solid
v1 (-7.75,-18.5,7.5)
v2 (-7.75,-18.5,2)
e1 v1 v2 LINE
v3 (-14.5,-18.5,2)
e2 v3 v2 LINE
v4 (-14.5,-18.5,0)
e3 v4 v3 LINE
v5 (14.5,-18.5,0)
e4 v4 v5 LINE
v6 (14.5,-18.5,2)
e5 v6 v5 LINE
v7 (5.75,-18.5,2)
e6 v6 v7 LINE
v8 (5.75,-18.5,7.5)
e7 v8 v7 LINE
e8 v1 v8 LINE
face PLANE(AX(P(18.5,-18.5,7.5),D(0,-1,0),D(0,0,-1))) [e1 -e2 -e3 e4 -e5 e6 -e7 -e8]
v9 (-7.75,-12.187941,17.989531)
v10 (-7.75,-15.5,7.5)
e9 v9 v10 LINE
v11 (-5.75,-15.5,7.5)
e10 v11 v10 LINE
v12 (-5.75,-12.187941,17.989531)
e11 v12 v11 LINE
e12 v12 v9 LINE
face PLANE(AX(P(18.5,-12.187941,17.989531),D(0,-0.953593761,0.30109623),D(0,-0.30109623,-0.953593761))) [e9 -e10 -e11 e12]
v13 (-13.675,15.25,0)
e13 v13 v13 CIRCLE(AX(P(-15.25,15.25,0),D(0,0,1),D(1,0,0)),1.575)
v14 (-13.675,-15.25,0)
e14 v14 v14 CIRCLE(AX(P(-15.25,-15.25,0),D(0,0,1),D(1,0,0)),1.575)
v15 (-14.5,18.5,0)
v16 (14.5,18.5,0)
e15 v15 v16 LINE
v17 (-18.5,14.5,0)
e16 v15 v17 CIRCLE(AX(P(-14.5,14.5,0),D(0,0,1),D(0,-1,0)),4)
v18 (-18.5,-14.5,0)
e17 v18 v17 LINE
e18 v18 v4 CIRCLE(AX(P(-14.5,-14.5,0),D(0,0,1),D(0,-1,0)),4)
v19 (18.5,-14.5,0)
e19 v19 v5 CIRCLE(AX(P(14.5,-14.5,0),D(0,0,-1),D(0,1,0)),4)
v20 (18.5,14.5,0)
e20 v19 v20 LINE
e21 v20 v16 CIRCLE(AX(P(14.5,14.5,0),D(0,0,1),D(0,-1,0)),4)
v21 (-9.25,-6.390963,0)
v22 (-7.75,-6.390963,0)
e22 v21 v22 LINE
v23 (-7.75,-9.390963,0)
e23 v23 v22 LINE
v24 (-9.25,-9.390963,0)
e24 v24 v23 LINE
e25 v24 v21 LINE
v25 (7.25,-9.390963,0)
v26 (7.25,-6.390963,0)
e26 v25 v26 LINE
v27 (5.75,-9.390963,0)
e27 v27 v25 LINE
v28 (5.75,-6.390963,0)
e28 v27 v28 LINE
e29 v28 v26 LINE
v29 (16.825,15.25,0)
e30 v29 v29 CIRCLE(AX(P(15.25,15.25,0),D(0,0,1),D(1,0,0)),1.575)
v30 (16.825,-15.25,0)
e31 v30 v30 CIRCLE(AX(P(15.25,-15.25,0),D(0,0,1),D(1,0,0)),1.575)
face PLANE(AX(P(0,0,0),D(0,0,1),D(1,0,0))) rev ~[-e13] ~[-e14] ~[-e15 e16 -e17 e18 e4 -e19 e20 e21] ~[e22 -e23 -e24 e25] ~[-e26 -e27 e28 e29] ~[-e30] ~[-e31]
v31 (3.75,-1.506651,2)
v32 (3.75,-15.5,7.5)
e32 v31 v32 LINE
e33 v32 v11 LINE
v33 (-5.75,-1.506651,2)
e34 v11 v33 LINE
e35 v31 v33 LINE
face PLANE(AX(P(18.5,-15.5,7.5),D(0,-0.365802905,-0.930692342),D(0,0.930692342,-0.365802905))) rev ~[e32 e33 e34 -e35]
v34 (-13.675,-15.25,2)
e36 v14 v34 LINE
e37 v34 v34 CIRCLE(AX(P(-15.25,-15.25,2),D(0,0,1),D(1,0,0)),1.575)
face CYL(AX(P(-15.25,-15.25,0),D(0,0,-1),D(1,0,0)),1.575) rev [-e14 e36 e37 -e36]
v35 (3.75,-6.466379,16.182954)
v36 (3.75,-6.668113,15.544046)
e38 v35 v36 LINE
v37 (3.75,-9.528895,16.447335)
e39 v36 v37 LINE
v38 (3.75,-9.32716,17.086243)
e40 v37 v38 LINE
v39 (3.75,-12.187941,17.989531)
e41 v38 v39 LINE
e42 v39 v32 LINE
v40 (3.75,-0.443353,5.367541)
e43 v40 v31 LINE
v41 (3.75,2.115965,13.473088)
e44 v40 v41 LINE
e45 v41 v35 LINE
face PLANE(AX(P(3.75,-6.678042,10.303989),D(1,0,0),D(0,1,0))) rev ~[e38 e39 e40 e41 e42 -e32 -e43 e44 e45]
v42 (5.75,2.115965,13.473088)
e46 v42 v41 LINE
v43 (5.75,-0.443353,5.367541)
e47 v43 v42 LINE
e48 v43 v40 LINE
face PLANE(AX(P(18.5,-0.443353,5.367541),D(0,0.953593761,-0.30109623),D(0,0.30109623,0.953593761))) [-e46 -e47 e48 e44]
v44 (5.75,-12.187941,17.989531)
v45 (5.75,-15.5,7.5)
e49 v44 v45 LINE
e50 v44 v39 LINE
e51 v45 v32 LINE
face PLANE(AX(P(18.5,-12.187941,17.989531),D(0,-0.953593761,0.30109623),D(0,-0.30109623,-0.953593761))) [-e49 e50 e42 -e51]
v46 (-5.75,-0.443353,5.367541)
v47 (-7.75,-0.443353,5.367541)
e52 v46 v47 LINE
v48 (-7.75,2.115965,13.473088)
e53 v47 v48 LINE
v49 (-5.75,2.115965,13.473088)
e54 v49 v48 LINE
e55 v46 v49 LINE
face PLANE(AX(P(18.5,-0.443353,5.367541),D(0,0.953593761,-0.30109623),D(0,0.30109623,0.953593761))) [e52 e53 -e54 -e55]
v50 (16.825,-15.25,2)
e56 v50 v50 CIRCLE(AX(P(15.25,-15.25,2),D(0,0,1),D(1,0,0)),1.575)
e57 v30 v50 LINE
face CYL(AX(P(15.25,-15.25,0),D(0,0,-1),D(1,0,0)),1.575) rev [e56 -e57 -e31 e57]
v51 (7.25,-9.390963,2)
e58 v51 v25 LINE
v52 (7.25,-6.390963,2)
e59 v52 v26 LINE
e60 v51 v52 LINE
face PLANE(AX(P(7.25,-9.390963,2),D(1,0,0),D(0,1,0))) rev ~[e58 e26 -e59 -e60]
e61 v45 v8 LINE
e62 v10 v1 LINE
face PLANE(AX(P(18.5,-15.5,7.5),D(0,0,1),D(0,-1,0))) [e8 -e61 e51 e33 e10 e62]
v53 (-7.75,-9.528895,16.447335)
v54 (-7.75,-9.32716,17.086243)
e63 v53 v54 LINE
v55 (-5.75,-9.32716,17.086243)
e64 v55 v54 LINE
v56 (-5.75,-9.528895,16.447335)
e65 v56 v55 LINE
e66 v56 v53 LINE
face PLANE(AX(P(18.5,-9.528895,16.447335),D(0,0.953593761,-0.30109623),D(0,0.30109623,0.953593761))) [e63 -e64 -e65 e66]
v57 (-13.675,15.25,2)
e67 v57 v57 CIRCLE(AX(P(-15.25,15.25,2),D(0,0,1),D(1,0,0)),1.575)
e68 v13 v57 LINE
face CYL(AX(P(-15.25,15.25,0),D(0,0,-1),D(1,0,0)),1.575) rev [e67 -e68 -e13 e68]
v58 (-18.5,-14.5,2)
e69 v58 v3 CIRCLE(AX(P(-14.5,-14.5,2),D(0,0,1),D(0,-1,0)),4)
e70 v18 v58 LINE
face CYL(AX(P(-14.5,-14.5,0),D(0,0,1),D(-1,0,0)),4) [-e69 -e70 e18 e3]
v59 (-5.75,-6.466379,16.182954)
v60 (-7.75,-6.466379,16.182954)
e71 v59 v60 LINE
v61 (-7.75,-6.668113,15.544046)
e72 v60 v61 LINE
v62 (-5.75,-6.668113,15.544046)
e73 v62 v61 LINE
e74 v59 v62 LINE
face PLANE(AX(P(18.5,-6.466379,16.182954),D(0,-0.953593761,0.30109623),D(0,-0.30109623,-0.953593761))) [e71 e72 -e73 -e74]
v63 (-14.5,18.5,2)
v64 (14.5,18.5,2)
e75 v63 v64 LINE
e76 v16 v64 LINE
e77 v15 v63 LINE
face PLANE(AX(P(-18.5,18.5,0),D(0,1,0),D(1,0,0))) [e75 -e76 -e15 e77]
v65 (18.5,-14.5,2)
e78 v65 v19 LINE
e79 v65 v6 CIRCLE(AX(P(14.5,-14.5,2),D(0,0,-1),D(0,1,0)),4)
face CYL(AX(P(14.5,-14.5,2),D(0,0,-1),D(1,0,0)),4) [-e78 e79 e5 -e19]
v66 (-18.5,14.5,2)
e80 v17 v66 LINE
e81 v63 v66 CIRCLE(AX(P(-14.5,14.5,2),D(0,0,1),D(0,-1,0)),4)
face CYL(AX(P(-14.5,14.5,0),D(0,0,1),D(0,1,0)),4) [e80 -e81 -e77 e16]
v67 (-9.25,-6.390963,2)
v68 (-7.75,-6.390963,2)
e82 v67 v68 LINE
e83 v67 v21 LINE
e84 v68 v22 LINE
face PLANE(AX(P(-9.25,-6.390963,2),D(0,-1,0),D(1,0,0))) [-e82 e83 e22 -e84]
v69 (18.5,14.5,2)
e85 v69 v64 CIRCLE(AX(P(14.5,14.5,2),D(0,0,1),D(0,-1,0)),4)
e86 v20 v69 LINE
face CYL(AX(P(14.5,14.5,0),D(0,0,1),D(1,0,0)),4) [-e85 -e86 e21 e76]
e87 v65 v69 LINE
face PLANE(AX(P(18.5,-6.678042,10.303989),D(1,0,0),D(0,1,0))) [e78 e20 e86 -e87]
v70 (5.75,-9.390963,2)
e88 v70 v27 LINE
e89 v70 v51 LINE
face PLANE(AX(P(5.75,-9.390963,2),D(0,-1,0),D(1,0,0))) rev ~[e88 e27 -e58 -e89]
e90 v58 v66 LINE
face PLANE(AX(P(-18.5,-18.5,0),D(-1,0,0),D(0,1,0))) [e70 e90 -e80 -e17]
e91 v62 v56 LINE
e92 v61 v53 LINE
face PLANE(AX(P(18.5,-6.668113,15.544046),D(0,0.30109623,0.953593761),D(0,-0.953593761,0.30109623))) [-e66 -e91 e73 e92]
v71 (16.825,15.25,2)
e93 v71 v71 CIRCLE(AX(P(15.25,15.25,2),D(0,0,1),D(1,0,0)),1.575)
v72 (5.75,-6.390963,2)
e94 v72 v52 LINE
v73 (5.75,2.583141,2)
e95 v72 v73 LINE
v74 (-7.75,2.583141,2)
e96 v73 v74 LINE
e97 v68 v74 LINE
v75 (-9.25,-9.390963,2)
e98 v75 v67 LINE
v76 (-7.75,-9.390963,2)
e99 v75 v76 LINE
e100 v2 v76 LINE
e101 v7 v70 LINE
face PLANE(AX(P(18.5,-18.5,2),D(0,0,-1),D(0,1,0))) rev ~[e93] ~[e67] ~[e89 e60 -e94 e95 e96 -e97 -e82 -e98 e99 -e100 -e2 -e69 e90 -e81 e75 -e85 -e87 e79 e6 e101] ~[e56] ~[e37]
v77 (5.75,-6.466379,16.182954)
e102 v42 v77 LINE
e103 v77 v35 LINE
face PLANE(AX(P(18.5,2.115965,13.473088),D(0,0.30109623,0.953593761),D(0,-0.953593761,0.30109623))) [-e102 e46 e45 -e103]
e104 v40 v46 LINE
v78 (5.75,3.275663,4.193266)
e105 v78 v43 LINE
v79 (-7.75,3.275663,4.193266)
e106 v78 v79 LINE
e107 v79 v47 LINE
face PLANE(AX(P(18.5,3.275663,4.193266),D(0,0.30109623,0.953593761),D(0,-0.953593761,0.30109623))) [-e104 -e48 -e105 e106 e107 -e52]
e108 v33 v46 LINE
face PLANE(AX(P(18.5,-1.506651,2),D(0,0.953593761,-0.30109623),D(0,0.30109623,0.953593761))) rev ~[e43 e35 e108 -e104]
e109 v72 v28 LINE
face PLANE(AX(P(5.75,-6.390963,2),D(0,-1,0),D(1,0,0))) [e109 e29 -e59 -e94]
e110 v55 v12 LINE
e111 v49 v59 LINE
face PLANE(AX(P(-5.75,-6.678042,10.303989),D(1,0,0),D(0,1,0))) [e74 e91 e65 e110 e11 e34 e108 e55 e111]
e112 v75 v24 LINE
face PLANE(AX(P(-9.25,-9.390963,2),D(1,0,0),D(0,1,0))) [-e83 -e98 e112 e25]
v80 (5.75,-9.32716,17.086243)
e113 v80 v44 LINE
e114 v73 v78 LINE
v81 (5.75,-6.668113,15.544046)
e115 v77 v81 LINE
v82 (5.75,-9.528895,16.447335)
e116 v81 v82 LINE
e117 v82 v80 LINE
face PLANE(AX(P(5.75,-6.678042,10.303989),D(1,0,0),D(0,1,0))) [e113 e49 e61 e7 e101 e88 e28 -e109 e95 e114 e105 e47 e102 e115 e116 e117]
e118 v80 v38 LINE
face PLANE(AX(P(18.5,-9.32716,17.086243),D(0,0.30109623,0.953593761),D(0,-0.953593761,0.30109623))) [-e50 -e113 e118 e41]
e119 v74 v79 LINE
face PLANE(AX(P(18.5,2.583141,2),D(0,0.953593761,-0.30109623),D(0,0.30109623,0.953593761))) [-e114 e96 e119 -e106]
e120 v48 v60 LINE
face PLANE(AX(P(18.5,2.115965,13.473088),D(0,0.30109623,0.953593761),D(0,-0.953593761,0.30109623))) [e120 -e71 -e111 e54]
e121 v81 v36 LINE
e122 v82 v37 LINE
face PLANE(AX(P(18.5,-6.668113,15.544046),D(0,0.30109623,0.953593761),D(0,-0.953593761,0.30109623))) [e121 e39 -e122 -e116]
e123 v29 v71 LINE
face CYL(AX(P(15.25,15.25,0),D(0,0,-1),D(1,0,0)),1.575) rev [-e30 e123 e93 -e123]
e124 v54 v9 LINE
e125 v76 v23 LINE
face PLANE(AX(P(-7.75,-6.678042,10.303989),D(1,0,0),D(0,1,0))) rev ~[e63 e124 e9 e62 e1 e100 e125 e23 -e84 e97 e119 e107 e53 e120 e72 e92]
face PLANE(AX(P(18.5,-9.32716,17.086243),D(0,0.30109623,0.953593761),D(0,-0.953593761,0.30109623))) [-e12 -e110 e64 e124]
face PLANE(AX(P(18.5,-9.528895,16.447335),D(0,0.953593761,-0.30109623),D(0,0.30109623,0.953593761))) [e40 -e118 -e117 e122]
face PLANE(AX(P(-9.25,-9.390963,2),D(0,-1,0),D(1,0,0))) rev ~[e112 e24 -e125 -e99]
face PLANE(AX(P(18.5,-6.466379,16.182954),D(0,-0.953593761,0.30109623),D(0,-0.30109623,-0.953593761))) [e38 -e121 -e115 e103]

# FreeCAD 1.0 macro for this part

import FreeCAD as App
import Part
import Sketcher

V = App.Vector


def edges_at(feature, points):
    """Names of the edges that pass closest to the given points."""
    edges = feature.Shape.Edges
    near = lambda p: min(range(len(edges)), key=lambda i: edges[i].distToShape(Part.Vertex(*p))[0])
    return sorted({f"Edge{near(p) + 1}" for p in points})


def add_polygon(sketch, points):
    """Adds a closed chain of lines whose ends are joined by coincident constraints."""
    first, n = sketch.GeometryCount, len(points)
    for a, b in zip(points, points[1:] + points[:1]):
        sketch.addGeometry(Part.LineSegment(App.Vector(*a, 0), App.Vector(*b, 0)), False)
    for i in range(n):
        sketch.addConstraint(Sketcher.Constraint("Coincident", first + i, 2, first + (i + 1) % n, 1))

doc = App.newDocument("Part")
body = doc.addObject("PartDesign::Body", "Body")

# Sketch on XY plane
sketch1 = body.newObject("Sketcher::SketchObject", "Sketch")
sketch1.AttachmentSupport = (doc.getObject("XY_Plane"), [""])
sketch1.MapMode = "FlatFace"
add_polygon(sketch1, [(-18.5, 18.5), (-18.5, -18.5), (18.5, -18.5), (18.5, 18.5)])  # lines 0-3
sketch1.addGeometry(Part.Circle(V(-15.25, -15.25, 0), V(0, 0, 1), 1.575), False)  # 4
sketch1.addGeometry(Part.Circle(V(15.25, -15.25, 0), V(0, 0, 1), 1.575), False)  # 5
sketch1.addGeometry(Part.Circle(V(-15.25, 15.25, 0), V(0, 0, 1), 1.575), False)  # 6
sketch1.addGeometry(Part.Circle(V(15.25, 15.25, 0), V(0, 0, 1), 1.575), False)  # 7
sketch1.addConstraint(Sketcher.Constraint("Vertical", 0))
sketch1.addConstraint(Sketcher.Constraint("Horizontal", 1))
sketch1.addConstraint(Sketcher.Constraint("Vertical", 2))
sketch1.addConstraint(Sketcher.Constraint("Horizontal", 3))
sketch1.addConstraint(Sketcher.Constraint("Equal", 4, 5))
sketch1.addConstraint(Sketcher.Constraint("Equal", 5, 6))
sketch1.addConstraint(Sketcher.Constraint("Equal", 6, 7))
sketch1.addConstraint(Sketcher.Constraint("Symmetric", 5, 3, 6, 3, -1, 1))
sketch1.addConstraint(Sketcher.Constraint("Symmetric", 4, 3, 7, 3, -1, 1))
sketch1.addConstraint(Sketcher.Constraint("Symmetric", 0, 2, 2, 2, -1, 1))
sketch1.addConstraint(Sketcher.Constraint("Symmetric", 4, 3, 5, 3, -2))
sketch1.addConstraint(Sketcher.Constraint("Equal", 3, 0))
sketch1.addConstraint(Sketcher.Constraint("Diameter", 4, 3.15))
sketch1.addConstraint(Sketcher.Constraint("DistanceX", 1, 1, 1, 2, 37.0))
sketch1.addConstraint(Sketcher.Constraint("DistanceX", 4, 3, 5, 3, 30.5))
sketch1.addConstraint(Sketcher.Constraint("DistanceY", 4, 3, 6, 3, 30.5))
pad1 = body.newObject("PartDesign::Pad", "Pad")
pad1.Profile = sketch1
pad1.Length = 2

# Sketch on YZ plane
sketch2 = body.newObject("Sketcher::SketchObject", "Sketch001")
sketch2.AttachmentSupport = (doc.getObject("YZ_Plane"), [""])
sketch2.MapMode = "FlatFace"
sketch2.AttachmentOffset = App.Placement(V(0, 0, 18.5), App.Rotation())
add_polygon(sketch2, [(-12.187941, 17.989531), (-15.5, 7.5), (-18.5, 7.5), (-18.5, 2), (2.583141, 2), (3.275663, 4.193266), (-0.443353, 5.367541), (2.115965, 13.473088), (-6.466379, 16.182954), (-6.668113, 15.544046), (-9.528895, 16.447335), (-9.32716, 17.086243)])  # lines 0-11
sketch2.addConstraint(Sketcher.Constraint("Horizontal", 1))
sketch2.addConstraint(Sketcher.Constraint("Vertical", 2))
sketch2.addConstraint(Sketcher.Constraint("Horizontal", 3))
sketch2.addConstraint(Sketcher.Constraint("Parallel", 0, 4))
sketch2.addConstraint(Sketcher.Constraint("Perpendicular", 4, 5))
sketch2.addConstraint(Sketcher.Constraint("Perpendicular", 5, 6))
sketch2.addConstraint(Sketcher.Constraint("Perpendicular", 6, 7))
sketch2.addConstraint(Sketcher.Constraint("Perpendicular", 7, 8))
sketch2.addConstraint(Sketcher.Constraint("Perpendicular", 8, 9))
sketch2.addConstraint(Sketcher.Constraint("Perpendicular", 9, 10))
sketch2.addConstraint(Sketcher.Constraint("Perpendicular", 10, 11))
sketch2.addConstraint(Sketcher.Constraint("Equal", 8, 10))
sketch2.addConstraint(Sketcher.Constraint("Equal", 9, 11))
sketch2.addConstraint(Sketcher.Constraint("DistanceX", 1, 2, 1, 1, 3.0))
sketch2.addConstraint(Sketcher.Constraint("Distance", 0, 11.0))
sketch2.addConstraint(Sketcher.Constraint("Distance", 7, 9.0))
sketch2.addConstraint(Sketcher.Constraint("Distance", 9, 3.0))
sketch2.addConstraint(Sketcher.Constraint("DistanceY", 2, 2, 2, 1, 5.5))
sketch2.addConstraint(Sketcher.Constraint("DistanceY", -1, 1, 2, 2, 2.0))
sketch2.addConstraint(Sketcher.Constraint("Distance", 4, 2.3))
sketch2.addConstraint(Sketcher.Constraint("Distance", 5, 3.9))
sketch2.addConstraint(Sketcher.Constraint("Distance", 6, 8.5))
sketch2.addConstraint(Sketcher.Constraint("DistanceX", 0, 2, -1, 1, 15.5))
sketch2.addConstraint(Sketcher.Constraint("Distance", 8, 0.67))
pad2 = body.newObject("PartDesign::Pad", "Pad001")
pad2.Profile = sketch2
pad2.Length = 26.25
pad2.Reversed = True

# Sketch on YZ plane
sketch3 = body.newObject("Sketcher::SketchObject", "Sketch002")
sketch3.AttachmentSupport = (doc.getObject("YZ_Plane"), [""])
sketch3.MapMode = "FlatFace"
sketch3.AttachmentOffset = App.Placement(V(0, 0, 18.5), App.Rotation())
add_polygon(sketch3, [(-15.5, 7.5), (-1.506651, 2), (-0.443353, 5.367541), (2.115965, 13.473088), (-6.466379, 16.182954), (-6.668113, 15.544046), (-9.528895, 16.447335), (-9.32716, 17.086243), (-12.187941, 17.989531)])  # lines 0-8
sketch3.addConstraint(Sketcher.Constraint("Parallel", 1, 2))
sketch3.addConstraint(Sketcher.Constraint("Perpendicular", 2, 3))
sketch3.addConstraint(Sketcher.Constraint("Perpendicular", 3, 4))
sketch3.addConstraint(Sketcher.Constraint("Perpendicular", 4, 5))
sketch3.addConstraint(Sketcher.Constraint("Perpendicular", 5, 6))
sketch3.addConstraint(Sketcher.Constraint("Perpendicular", 6, 7))
sketch3.addConstraint(Sketcher.Constraint("Perpendicular", 7, 8))
sketch3.addConstraint(Sketcher.Constraint("Equal", 4, 6))
sketch3.addConstraint(Sketcher.Constraint("Equal", 5, 7))
sketch3.addConstraint(Sketcher.Constraint("Distance", 3, 9.0))
sketch3.addConstraint(Sketcher.Constraint("Distance", 5, 3.0))
sketch3.addConstraint(Sketcher.Constraint("Distance", 8, 11.0))
sketch3.addConstraint(Sketcher.Constraint("DistanceY", -1, 1, 0, 2, 2.0))
sketch3.addConstraint(Sketcher.Constraint("Distance", 2, 8.5))
sketch3.addConstraint(Sketcher.Constraint("DistanceX", 8, 2, -1, 1, 15.5))
sketch3.addConstraint(Sketcher.Constraint("DistanceY", -1, 1, 8, 2, 7.5))
sketch3.addConstraint(Sketcher.Constraint("Distance", 4, 0.67))
sketch3.addConstraint(Sketcher.Constraint("DistanceY", 1, 2, 6, 2, 11.718702))
pocket1 = body.newObject("PartDesign::Pocket", "Pocket")
pocket1.Profile = sketch3
pocket1.Length = 24.25

# Sketch on YZ plane
sketch4 = body.newObject("Sketcher::SketchObject", "Sketch003")
sketch4.AttachmentSupport = (doc.getObject("YZ_Plane"), [""])
sketch4.MapMode = "FlatFace"
sketch4.AttachmentOffset = App.Placement(V(0, 0, 18.5), App.Rotation())
add_polygon(sketch4, [(-12.187941, 17.989531), (-15.5, 7.5), (-18.5, 7.5), (-18.5, 2), (2.583141, 2), (3.275663, 4.193266), (-0.443353, 5.367541), (2.115965, 13.473088), (-6.466379, 16.182954), (-6.668113, 15.544046), (-9.528895, 16.447335), (-9.32716, 17.086243)])  # lines 0-11
sketch4.addConstraint(Sketcher.Constraint("Horizontal", 1))
sketch4.addConstraint(Sketcher.Constraint("Vertical", 2))
sketch4.addConstraint(Sketcher.Constraint("Horizontal", 3))
sketch4.addConstraint(Sketcher.Constraint("Parallel", 0, 4))
sketch4.addConstraint(Sketcher.Constraint("Perpendicular", 4, 5))
sketch4.addConstraint(Sketcher.Constraint("Perpendicular", 5, 6))
sketch4.addConstraint(Sketcher.Constraint("Perpendicular", 6, 7))
sketch4.addConstraint(Sketcher.Constraint("Perpendicular", 7, 8))
sketch4.addConstraint(Sketcher.Constraint("Perpendicular", 8, 9))
sketch4.addConstraint(Sketcher.Constraint("Perpendicular", 9, 10))
sketch4.addConstraint(Sketcher.Constraint("Perpendicular", 10, 11))
sketch4.addConstraint(Sketcher.Constraint("Equal", 8, 10))
sketch4.addConstraint(Sketcher.Constraint("Equal", 9, 11))
sketch4.addConstraint(Sketcher.Constraint("DistanceX", 1, 2, 1, 1, 3.0))
sketch4.addConstraint(Sketcher.Constraint("Distance", 0, 11.0))
sketch4.addConstraint(Sketcher.Constraint("Distance", 7, 9.0))
sketch4.addConstraint(Sketcher.Constraint("Distance", 9, 3.0))
sketch4.addConstraint(Sketcher.Constraint("DistanceY", 2, 2, 2, 1, 5.5))
sketch4.addConstraint(Sketcher.Constraint("DistanceY", -1, 1, 2, 2, 2.0))
sketch4.addConstraint(Sketcher.Constraint("Distance", 4, 2.3))
sketch4.addConstraint(Sketcher.Constraint("Distance", 5, 3.9))
sketch4.addConstraint(Sketcher.Constraint("Distance", 6, 8.5))
sketch4.addConstraint(Sketcher.Constraint("DistanceX", 0, 2, -1, 1, 15.5))
sketch4.addConstraint(Sketcher.Constraint("Distance", 8, 0.67))
pad3 = body.newObject("PartDesign::Pad", "Pad002")
pad3.Profile = sketch4
pad3.Length = 14.75
pad3.Reversed = True

# Sketch on YZ plane
sketch5 = body.newObject("Sketcher::SketchObject", "Sketch004")
sketch5.AttachmentSupport = (doc.getObject("YZ_Plane"), [""])
sketch5.MapMode = "FlatFace"
sketch5.AttachmentOffset = App.Placement(V(0, 0, 18.5), App.Rotation())
add_polygon(sketch5, [(-12.187941, 17.989531), (-15.5, 7.5), (-18.5, 7.5), (-18.5, 2), (2.583141, 2), (3.275663, 4.193266), (-0.443353, 5.367541), (2.115965, 13.473088), (-6.466379, 16.182954), (-6.668113, 15.544046), (-9.528895, 16.447335), (-9.32716, 17.086243)])  # lines 0-11
sketch5.addConstraint(Sketcher.Constraint("Horizontal", 1))
sketch5.addConstraint(Sketcher.Constraint("Vertical", 2))
sketch5.addConstraint(Sketcher.Constraint("Horizontal", 3))
sketch5.addConstraint(Sketcher.Constraint("Parallel", 0, 4))
sketch5.addConstraint(Sketcher.Constraint("Perpendicular", 4, 5))
sketch5.addConstraint(Sketcher.Constraint("Perpendicular", 5, 6))
sketch5.addConstraint(Sketcher.Constraint("Perpendicular", 6, 7))
sketch5.addConstraint(Sketcher.Constraint("Perpendicular", 7, 8))
sketch5.addConstraint(Sketcher.Constraint("Perpendicular", 8, 9))
sketch5.addConstraint(Sketcher.Constraint("Perpendicular", 9, 10))
sketch5.addConstraint(Sketcher.Constraint("Perpendicular", 10, 11))
sketch5.addConstraint(Sketcher.Constraint("Equal", 8, 10))
sketch5.addConstraint(Sketcher.Constraint("Equal", 9, 11))
sketch5.addConstraint(Sketcher.Constraint("DistanceX", 1, 2, 1, 1, 3.0))
sketch5.addConstraint(Sketcher.Constraint("Distance", 0, 11.0))
sketch5.addConstraint(Sketcher.Constraint("Distance", 7, 9.0))
sketch5.addConstraint(Sketcher.Constraint("Distance", 9, 3.0))
sketch5.addConstraint(Sketcher.Constraint("DistanceY", 2, 2, 2, 1, 5.5))
sketch5.addConstraint(Sketcher.Constraint("DistanceY", -1, 1, 2, 2, 2.0))
sketch5.addConstraint(Sketcher.Constraint("Distance", 4, 2.3))
sketch5.addConstraint(Sketcher.Constraint("Distance", 5, 3.9))
sketch5.addConstraint(Sketcher.Constraint("Distance", 6, 8.5))
sketch5.addConstraint(Sketcher.Constraint("DistanceX", 0, 2, -1, 1, 15.5))
sketch5.addConstraint(Sketcher.Constraint("Distance", 8, 0.67))
pocket2 = body.newObject("PartDesign::Pocket", "Pocket001")
pocket2.Profile = sketch5
pocket2.Length = 12.75
doc.recompute()

fillet = body.newObject("PartDesign::Fillet", "Fillet")
fillet.Base = (pocket2, edges_at(pocket2, [
    (18.5, -18.5, 1),
    (18.5, 18.5, 1),
    (-18.5, 18.5, 1),
    (-18.5, -18.5, 1),
]))
fillet.Radius = 4

# Sketch on XY plane
sketch6 = body.newObject("Sketcher::SketchObject", "Sketch005")
sketch6.AttachmentSupport = (doc.getObject("XY_Plane"), [""])
sketch6.MapMode = "FlatFace"
sketch6.AttachmentOffset = App.Placement(V(0, 0, 2), App.Rotation())
add_polygon(sketch6, [(-9.25, -6.390963), (-9.25, -9.390963), (-7.75, -9.390963), (-7.75, -6.390963)])  # lines 0-3
add_polygon(sketch6, [(5.75, -6.390963), (5.75, -9.390963), (7.25, -9.390963), (7.25, -6.390963)])  # lines 4-7
sketch6.addConstraint(Sketcher.Constraint("Vertical", 0))
sketch6.addConstraint(Sketcher.Constraint("Horizontal", 1))
sketch6.addConstraint(Sketcher.Constraint("Vertical", 2))
sketch6.addConstraint(Sketcher.Constraint("Horizontal", 3))
sketch6.addConstraint(Sketcher.Constraint("Vertical", 4))
sketch6.addConstraint(Sketcher.Constraint("Horizontal", 5))
sketch6.addConstraint(Sketcher.Constraint("Vertical", 6))
sketch6.addConstraint(Sketcher.Constraint("Horizontal", 7))
sketch6.addConstraint(Sketcher.Constraint("Horizontal", 1, 2, 4, 2))
sketch6.addConstraint(Sketcher.Constraint("Horizontal", 3, 2, 6, 2))
sketch6.addConstraint(Sketcher.Constraint("Equal", 3, 5))
sketch6.addConstraint(Sketcher.Constraint("DistanceY", 0, 2, 0, 1, 3.0))
sketch6.addConstraint(Sketcher.Constraint("DistanceX", 1, 1, 1, 2, 1.5))
sketch6.addConstraint(Sketcher.Constraint("DistanceX", 0, 2, 4, 2, 15.0))
sketch6.addConstraint(Sketcher.Constraint("DistanceX", 0, 2, -1, 1, 9.25))
sketch6.addConstraint(Sketcher.Constraint("DistanceY", 0, 2, -1, 1, 9.390963))
pocket3 = body.newObject("PartDesign::Pocket", "Pocket002")
pocket3.Profile = sketch6
pocket3.Length = 25

doc.recompute()
